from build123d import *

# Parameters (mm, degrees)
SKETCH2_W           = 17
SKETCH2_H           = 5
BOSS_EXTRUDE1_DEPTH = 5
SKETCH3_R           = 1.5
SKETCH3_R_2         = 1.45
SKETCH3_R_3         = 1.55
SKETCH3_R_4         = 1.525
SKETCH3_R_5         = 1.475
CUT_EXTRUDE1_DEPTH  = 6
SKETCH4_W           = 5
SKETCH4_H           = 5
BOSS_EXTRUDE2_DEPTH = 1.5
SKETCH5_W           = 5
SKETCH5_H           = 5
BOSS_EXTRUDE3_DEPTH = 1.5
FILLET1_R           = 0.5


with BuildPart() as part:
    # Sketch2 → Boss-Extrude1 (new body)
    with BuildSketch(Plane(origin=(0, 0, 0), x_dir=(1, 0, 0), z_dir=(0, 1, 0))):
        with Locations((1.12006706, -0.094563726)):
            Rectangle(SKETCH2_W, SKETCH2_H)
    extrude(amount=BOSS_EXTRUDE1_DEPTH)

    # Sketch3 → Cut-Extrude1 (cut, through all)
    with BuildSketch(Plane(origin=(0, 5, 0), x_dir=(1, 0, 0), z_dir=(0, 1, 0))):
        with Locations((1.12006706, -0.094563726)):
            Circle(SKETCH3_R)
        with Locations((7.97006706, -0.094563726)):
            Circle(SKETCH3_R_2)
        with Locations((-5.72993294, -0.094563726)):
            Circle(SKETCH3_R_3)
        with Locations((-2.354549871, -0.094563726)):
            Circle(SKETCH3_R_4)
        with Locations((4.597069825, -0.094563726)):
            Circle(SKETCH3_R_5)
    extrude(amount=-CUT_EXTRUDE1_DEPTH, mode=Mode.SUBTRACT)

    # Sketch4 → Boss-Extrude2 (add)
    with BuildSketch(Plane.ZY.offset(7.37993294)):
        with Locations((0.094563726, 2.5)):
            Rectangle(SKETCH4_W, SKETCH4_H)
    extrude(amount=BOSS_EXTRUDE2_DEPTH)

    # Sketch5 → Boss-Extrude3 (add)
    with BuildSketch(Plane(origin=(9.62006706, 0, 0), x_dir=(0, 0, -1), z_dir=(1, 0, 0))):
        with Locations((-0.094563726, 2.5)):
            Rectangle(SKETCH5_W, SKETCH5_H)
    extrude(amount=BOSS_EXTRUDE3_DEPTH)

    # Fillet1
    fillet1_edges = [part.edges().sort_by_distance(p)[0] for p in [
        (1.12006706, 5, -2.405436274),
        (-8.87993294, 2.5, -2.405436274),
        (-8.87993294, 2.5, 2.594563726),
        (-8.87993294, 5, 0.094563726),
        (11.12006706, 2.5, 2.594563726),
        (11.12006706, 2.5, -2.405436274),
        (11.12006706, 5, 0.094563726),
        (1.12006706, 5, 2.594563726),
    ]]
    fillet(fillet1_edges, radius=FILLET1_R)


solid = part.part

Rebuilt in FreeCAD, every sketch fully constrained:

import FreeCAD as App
import Part
import Sketcher

V = App.Vector


def edges_at(feature, points):
    """Names of the edges that pass closest to the given points."""
    edges = feature.Shape.Edges
    near = lambda p: min(range(len(edges)), key=lambda i: edges[i].distToShape(Part.Vertex(*p))[0])
    return sorted({f"Edge{near(p) + 1}" for p in points})

doc = App.newDocument("Part")
body = doc.addObject("PartDesign::Body", "Body")

sketch1 = doc.addObject("Sketcher::SketchObject", "Sketch")
body.addObject(sketch1)
sketch1.AttachmentSupport = (doc.XZ_Plane, [""])
sketch1.MapMode = "FlatFace"
sketch1.addGeometry(Part.LineSegment(V(-7, -2, 0), V(-7, 3, 0)), False)
sketch1.addGeometry(Part.LineSegment(V(-7, 3, 0), V(10, 3, 0)), False)
sketch1.addGeometry(Part.LineSegment(V(10, 3, 0), V(10, -2, 0)), False)
sketch1.addGeometry(Part.LineSegment(V(10, -2, 0), V(-7, -2, 0)), False)
sketch1.addConstraint(Sketcher.Constraint("Coincident", 0, 2, 1, 1))
sketch1.addConstraint(Sketcher.Constraint("Coincident", 1, 2, 2, 1))
sketch1.addConstraint(Sketcher.Constraint("Coincident", 2, 2, 3, 1))
sketch1.addConstraint(Sketcher.Constraint("Coincident", 3, 2, 0, 1))
sketch1.addConstraint(Sketcher.Constraint("Vertical", 0))
sketch1.addConstraint(Sketcher.Constraint("Horizontal", 1))
sketch1.addConstraint(Sketcher.Constraint("Vertical", 2))
sketch1.addConstraint(Sketcher.Constraint("Horizontal", 3))
sketch1.addConstraint(Sketcher.Constraint("DistanceX", 1, 1, 1, 2, 17.0))
sketch1.addConstraint(Sketcher.Constraint("DistanceY", 0, 1, 0, 2, 5.0))
sketch1.addConstraint(Sketcher.Constraint("DistanceX", 0, 2, -1, 1, 7.379933))
sketch1.addConstraint(Sketcher.Constraint("DistanceY", -1, 1, 0, 2, 2.594564))
pad1 = doc.addObject("PartDesign::Pad", "Pad")
body.addObject(pad1)
pad1.Profile = sketch1
pad1.Length = 5
pad1.Reversed = True

sketch2 = doc.addObject("Sketcher::SketchObject", "Sketch001")
body.addObject(sketch2)
sketch2.AttachmentSupport = (doc.XZ_Plane, [""])
sketch2.MapMode = "FlatFace"
sketch2.AttachmentOffset = App.Placement(V(0, 0, -5), App.Rotation())
sketch2.addGeometry(Part.Circle(V(1.1, 0.1, 0), V(0, 0, 1), 1.5), False)
sketch2.addGeometry(Part.Circle(V(8, 0.1, 0), V(0, 0, 1), 1.4), False)
sketch2.addGeometry(Part.Circle(V(-5.7, 0.1, 0), V(0, 0, 1), 1.6), False)
sketch2.addGeometry(Part.Circle(V(-2.4, 0.1, 0), V(0, 0, 1), 1.5), False)
sketch2.addGeometry(Part.Circle(V(4.6, 0.1, 0), V(0, 0, 1), 1.5), False)
sketch2.addConstraint(Sketcher.Constraint("Horizontal", 0, 3, 1, 3))
sketch2.addConstraint(Sketcher.Constraint("Horizontal", 1, 3, 2, 3))
sketch2.addConstraint(Sketcher.Constraint("Horizontal", 2, 3, 3, 3))
sketch2.addConstraint(Sketcher.Constraint("Horizontal", 3, 3, 4, 3))
sketch2.addConstraint(Sketcher.Constraint("Diameter", 0, 3.0))
sketch2.addConstraint(Sketcher.Constraint("Diameter", 1, 2.9))
sketch2.addConstraint(Sketcher.Constraint("Diameter", 2, 3.1))
sketch2.addConstraint(Sketcher.Constraint("Diameter", 3, 3.05))
sketch2.addConstraint(Sketcher.Constraint("Diameter", 4, 2.95))
sketch2.addConstraint(Sketcher.Constraint("DistanceX", 2, 3, 1, 3, 13.7))
sketch2.addConstraint(Sketcher.Constraint("DistanceX", 0, 3, 1, 3, 6.85))
sketch2.addConstraint(Sketcher.Constraint("DistanceX", 3, 3, -1, 1, 2.35455))
sketch2.addConstraint(Sketcher.Constraint("DistanceX", -1, 1, 4, 3, 4.59707))
sketch2.addConstraint(Sketcher.Constraint("DistanceX", -1, 1, 0, 3, 1.120067))
sketch2.addConstraint(Sketcher.Constraint("DistanceY", -1, 1, 0, 3, 0.094564))
pocket1 = doc.addObject("PartDesign::Pocket", "Pocket")
body.addObject(pocket1)
pocket1.Profile = sketch2
pocket1.Type = "ThroughAll"
pocket1.Reversed = True

sketch3 = doc.addObject("Sketcher::SketchObject", "Sketch002")
body.addObject(sketch3)
sketch3.AttachmentSupport = (doc.YZ_Plane, [""])
sketch3.MapMode = "FlatFace"
sketch3.AttachmentOffset = App.Placement(V(0, 0, -7.379933), App.Rotation())
sketch3.addGeometry(Part.LineSegment(V(5, -2, 0), V(0, -2, 0)), False)
sketch3.addGeometry(Part.LineSegment(V(0, -2, 0), V(0, 3, 0)), False)
sketch3.addGeometry(Part.LineSegment(V(0, 3, 0), V(5, 3, 0)), False)
sketch3.addGeometry(Part.LineSegment(V(5, 3, 0), V(5, -2, 0)), False)
sketch3.addConstraint(Sketcher.Constraint("Coincident", 0, 2, 1, 1))
sketch3.addConstraint(Sketcher.Constraint("Coincident", 1, 2, 2, 1))
sketch3.addConstraint(Sketcher.Constraint("Coincident", 2, 2, 3, 1))
sketch3.addConstraint(Sketcher.Constraint("Coincident", 3, 2, 0, 1))
sketch3.addConstraint(Sketcher.Constraint("Horizontal", 0))
sketch3.addConstraint(Sketcher.Constraint("Vertical", 1))
sketch3.addConstraint(Sketcher.Constraint("Horizontal", 2))
sketch3.addConstraint(Sketcher.Constraint("Vertical", 3))
sketch3.addConstraint(Sketcher.Constraint("PointOnObject", 0, 2, -2))
sketch3.addConstraint(Sketcher.Constraint("Equal", 2, 1))
sketch3.addConstraint(Sketcher.Constraint("DistanceX", 0, 2, 0, 1, 5.0))
sketch3.addConstraint(Sketcher.Constraint("DistanceY", 0, 2, -1, 1, 2.405436))
pad2 = doc.addObject("PartDesign::Pad", "Pad001")
body.addObject(pad2)
pad2.Profile = sketch3
pad2.Length = 1.5
pad2.Reversed = True

sketch4 = doc.addObject("Sketcher::SketchObject", "Sketch003")
body.addObject(sketch4)
sketch4.AttachmentSupport = (doc.YZ_Plane, [""])
sketch4.MapMode = "FlatFace"
sketch4.AttachmentOffset = App.Placement(V(0, 0, 9.620067), App.Rotation())
sketch4.addGeometry(Part.LineSegment(V(5, 3, 0), V(0, 3, 0)), False)
sketch4.addGeometry(Part.LineSegment(V(0, 3, 0), V(0, -2, 0)), False)
sketch4.addGeometry(Part.LineSegment(V(0, -2, 0), V(5, -2, 0)), False)
sketch4.addGeometry(Part.LineSegment(V(5, -2, 0), V(5, 3, 0)), False)
sketch4.addConstraint(Sketcher.Constraint("Coincident", 0, 2, 1, 1))
sketch4.addConstraint(Sketcher.Constraint("Coincident", 1, 2, 2, 1))
sketch4.addConstraint(Sketcher.Constraint("Coincident", 2, 2, 3, 1))
sketch4.addConstraint(Sketcher.Constraint("Coincident", 3, 2, 0, 1))
sketch4.addConstraint(Sketcher.Constraint("Horizontal", 0))
sketch4.addConstraint(Sketcher.Constraint("Vertical", 1))
sketch4.addConstraint(Sketcher.Constraint("Horizontal", 2))
sketch4.addConstraint(Sketcher.Constraint("Vertical", 3))
sketch4.addConstraint(Sketcher.Constraint("PointOnObject", 0, 2, -2))
sketch4.addConstraint(Sketcher.Constraint("Equal", 2, 1))
sketch4.addConstraint(Sketcher.Constraint("DistanceX", 0, 2, 0, 1, 5.0))
sketch4.addConstraint(Sketcher.Constraint("DistanceY", -1, 1, 0, 2, 2.594564))
pad3 = doc.addObject("PartDesign::Pad", "Pad002")
body.addObject(pad3)
pad3.Profile = sketch4
pad3.Length = 1.5
doc.recompute()

fillet = doc.addObject("PartDesign::Fillet", "Fillet")
body.addObject(fillet)
fillet.Base = (pad3, edges_at(pad3, [
    (1.12, 5, -2.405),
    (-8.88, 2.5, -2.405),
    (-8.88, 2.5, 2.595),
    (-8.88, 5, 0.095),
    (11.12, 2.5, 2.595),
    (11.12, 2.5, -2.405),
    (11.12, 5, 0.095),
    (1.12, 5, 2.595),
]))
fillet.Radius = 0.5

doc.recompute()
